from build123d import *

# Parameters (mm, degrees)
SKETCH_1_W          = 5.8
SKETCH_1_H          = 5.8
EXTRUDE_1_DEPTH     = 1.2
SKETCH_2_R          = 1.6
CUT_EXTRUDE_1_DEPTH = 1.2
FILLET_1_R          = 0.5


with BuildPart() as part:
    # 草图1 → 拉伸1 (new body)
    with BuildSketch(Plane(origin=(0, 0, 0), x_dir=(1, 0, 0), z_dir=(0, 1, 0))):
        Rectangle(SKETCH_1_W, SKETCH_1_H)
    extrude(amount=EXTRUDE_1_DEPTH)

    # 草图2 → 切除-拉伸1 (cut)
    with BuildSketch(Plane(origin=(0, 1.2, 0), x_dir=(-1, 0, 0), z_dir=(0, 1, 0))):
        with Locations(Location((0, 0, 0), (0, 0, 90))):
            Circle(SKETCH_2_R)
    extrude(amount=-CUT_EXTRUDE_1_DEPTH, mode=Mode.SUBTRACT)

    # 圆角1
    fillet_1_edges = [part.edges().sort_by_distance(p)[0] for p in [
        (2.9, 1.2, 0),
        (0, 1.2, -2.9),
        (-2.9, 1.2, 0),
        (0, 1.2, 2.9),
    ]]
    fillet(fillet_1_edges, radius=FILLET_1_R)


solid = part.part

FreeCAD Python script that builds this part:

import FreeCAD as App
import Part
import Sketcher

V = App.Vector


def edges_at(feature, points):
    """Names of the edges that pass closest to the given points."""
    edges = feature.Shape.Edges
    near = lambda p: min(range(len(edges)), key=lambda i: edges[i].distToShape(Part.Vertex(*p))[0])
    return sorted({f"Edge{near(p) + 1}" for p in points})

doc = App.newDocument("Part")
params = doc.addObject("Spreadsheet::Sheet", "Params")
for row, (alias, value) in enumerate([
    ("sketch1_width", "5.8 mm"),
    ("pad1_length", "1.2 mm"),
    ("sketch2_diameter", "3.2 mm"),
    ("pocket1_length", "1.2 mm"),
    ("fillet_radius", "0.5 mm"),
], start=1):
    params.set(f"A{row}", alias)
    params.set(f"B{row}", "=" + value)
    params.setAlias(f"B{row}", alias)

body = doc.addObject("PartDesign::Body", "Body")

sketch1 = body.newObject("Sketcher::SketchObject", "Sketch")
sketch1.AttachmentSupport = (doc.getObject("XZ_Plane"), [""])
sketch1.MapMode = "FlatFace"
sketch1.addGeometry([
    Part.LineSegment(V(-3, -3, 0), V(-3, 3, 0)),
    Part.LineSegment(V(-3, 3, 0), V(3, 3, 0)),
    Part.LineSegment(V(3, 3, 0), V(3, -3, 0)),
    Part.LineSegment(V(3, -3, 0), V(-3, -3, 0)),
], False)
sketch1.addConstraint([
    Sketcher.Constraint("Coincident", 0, 2, 1, 1),
    Sketcher.Constraint("Coincident", 1, 2, 2, 1),
    Sketcher.Constraint("Coincident", 2, 2, 3, 1),
    Sketcher.Constraint("Coincident", 3, 2, 0, 1),
    Sketcher.Constraint("Vertical", 0),
    Sketcher.Constraint("Horizontal", 1),
    Sketcher.Constraint("Vertical", 2),
    Sketcher.Constraint("Horizontal", 3),
    Sketcher.Constraint("Symmetric", 0, 2, 2, 2, -1, 1),
    Sketcher.Constraint("Equal", 3, 0),
    Sketcher.Constraint("DistanceX", 1, 1, 1, 2, 5.8),
])
sketch1.setExpression("Constraints[10]", "Params.sketch1_width")
pad1 = body.newObject("PartDesign::Pad", "Pad")
pad1.Profile = sketch1
pad1.setExpression("Length", "Params.pad1_length")
pad1.Reversed = True

sketch2 = body.newObject("Sketcher::SketchObject", "Sketch001")
sketch2.AttachmentSupport = (doc.getObject("XZ_Plane"), [""])
sketch2.MapMode = "FlatFace"
sketch2.AttachmentOffset = App.Placement(V(0, 0, -1.2), App.Rotation())
sketch2.addGeometry(Part.Circle(V(0, 0, 0), V(0, 0, 1), 1.6), False)
sketch2.addConstraint([
    Sketcher.Constraint("Coincident", 0, 3, -1, 1),
    Sketcher.Constraint("Diameter", 0, 3.2),
])
sketch2.setExpression("Constraints[1]", "Params.sketch2_diameter")
pocket1 = body.newObject("PartDesign::Pocket", "Pocket")
pocket1.Profile = sketch2
pocket1.setExpression("Length", "Params.pocket1_length")
pocket1.Reversed = True
doc.recompute()

fillet = body.newObject("PartDesign::Fillet", "Fillet")
fillet.Base = (pocket1, edges_at(pocket1, [
    (2.9, 1.2, 0),
    (0, 1.2, -2.9),
    (-2.9, 1.2, 0),
    (0, 1.2, 2.9),
]))
fillet.setExpression("Radius", "Params.fillet_radius")

doc.recompute()
